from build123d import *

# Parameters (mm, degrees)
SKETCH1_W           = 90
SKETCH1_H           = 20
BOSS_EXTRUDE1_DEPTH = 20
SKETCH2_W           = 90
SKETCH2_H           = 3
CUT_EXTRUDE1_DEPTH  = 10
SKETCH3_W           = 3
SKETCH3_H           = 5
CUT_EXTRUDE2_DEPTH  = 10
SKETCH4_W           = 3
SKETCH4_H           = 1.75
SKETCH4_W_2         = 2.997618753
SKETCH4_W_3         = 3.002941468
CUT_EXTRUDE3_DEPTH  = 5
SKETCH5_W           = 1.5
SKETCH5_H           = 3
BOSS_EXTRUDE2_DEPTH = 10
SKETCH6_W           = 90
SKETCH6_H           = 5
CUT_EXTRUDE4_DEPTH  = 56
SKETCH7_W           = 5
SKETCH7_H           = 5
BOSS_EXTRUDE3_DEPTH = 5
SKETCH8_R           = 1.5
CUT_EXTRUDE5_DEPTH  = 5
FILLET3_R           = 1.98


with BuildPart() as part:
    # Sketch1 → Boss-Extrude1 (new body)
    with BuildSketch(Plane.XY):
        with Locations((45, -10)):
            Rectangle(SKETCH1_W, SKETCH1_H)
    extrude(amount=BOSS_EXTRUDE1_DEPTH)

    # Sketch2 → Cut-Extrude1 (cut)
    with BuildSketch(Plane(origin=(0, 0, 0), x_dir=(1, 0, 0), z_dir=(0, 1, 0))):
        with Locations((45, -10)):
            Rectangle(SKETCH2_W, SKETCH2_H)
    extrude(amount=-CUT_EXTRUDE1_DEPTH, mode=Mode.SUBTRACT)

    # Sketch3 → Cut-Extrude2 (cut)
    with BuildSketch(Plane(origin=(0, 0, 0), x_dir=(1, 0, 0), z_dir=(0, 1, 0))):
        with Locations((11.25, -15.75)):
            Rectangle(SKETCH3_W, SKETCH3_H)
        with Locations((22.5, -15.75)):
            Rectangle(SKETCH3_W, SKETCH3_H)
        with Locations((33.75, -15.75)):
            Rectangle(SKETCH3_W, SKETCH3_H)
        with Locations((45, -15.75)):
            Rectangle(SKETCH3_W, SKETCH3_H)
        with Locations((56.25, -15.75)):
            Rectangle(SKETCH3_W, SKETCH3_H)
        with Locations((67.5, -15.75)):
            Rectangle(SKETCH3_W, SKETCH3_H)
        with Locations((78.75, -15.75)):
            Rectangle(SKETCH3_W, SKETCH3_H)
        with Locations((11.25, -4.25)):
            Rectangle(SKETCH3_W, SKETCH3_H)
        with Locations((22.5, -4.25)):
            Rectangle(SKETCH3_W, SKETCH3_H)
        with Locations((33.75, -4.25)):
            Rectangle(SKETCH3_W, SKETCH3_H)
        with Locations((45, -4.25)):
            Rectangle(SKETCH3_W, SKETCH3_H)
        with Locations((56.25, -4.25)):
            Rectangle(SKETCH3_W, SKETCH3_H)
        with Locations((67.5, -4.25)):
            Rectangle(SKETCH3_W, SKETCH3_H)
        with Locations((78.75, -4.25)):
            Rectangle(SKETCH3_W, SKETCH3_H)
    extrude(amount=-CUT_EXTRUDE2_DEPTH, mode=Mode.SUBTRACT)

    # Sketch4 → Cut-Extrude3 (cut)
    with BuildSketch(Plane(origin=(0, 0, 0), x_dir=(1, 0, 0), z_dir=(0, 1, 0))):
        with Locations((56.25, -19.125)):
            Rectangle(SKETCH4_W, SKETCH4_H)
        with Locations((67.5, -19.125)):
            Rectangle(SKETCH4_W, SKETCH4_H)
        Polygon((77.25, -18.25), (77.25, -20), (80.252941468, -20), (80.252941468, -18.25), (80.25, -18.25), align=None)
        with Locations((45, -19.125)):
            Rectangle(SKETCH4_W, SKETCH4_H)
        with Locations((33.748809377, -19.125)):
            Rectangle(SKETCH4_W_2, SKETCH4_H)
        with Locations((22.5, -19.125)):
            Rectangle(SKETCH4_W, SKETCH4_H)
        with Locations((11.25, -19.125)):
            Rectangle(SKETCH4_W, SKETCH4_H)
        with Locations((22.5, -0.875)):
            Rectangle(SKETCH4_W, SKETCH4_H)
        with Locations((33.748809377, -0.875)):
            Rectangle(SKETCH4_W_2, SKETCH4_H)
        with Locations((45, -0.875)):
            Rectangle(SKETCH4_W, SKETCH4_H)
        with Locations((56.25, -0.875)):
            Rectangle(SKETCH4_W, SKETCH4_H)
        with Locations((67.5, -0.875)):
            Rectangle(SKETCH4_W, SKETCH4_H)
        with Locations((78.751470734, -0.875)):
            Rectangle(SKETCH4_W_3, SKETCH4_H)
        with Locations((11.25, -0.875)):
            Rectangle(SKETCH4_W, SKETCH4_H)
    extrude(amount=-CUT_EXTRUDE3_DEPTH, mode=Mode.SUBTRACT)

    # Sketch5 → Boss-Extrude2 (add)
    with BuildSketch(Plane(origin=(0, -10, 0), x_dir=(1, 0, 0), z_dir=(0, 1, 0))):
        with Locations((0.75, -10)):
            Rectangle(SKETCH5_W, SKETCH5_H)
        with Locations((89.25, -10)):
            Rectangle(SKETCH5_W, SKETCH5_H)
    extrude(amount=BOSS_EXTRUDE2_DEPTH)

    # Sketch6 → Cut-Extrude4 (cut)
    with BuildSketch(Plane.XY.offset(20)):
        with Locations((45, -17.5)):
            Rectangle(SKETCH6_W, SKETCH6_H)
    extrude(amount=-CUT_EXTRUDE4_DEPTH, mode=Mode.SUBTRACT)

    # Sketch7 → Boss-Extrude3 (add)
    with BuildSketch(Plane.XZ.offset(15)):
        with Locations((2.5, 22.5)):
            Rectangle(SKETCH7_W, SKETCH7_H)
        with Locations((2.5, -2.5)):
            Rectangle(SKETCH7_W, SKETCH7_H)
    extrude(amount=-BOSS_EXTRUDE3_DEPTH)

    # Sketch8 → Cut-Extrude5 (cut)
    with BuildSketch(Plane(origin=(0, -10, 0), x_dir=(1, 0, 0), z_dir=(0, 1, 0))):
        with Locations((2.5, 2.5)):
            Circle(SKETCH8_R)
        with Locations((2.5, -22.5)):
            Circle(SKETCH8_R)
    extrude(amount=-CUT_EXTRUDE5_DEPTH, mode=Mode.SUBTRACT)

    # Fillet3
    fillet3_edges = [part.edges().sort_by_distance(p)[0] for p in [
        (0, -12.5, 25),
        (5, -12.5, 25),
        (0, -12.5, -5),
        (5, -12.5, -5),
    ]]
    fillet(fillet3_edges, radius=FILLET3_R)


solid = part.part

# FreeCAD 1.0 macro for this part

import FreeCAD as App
import Part
import Sketcher


def edges_at(feature, points):
    """Names of the edges that pass closest to the given points."""
    edges = feature.Shape.Edges
    near = lambda p: min(range(len(edges)), key=lambda i: edges[i].distToShape(Part.Vertex(*p))[0])
    return sorted({f"Edge{near(p) + 1}" for p in points})

doc = App.newDocument("Part")
body = doc.addObject("PartDesign::Body", "Body")

sketch1 = body.newObject("Sketcher::SketchObject", "Sketch")
sketch1.AttachmentSupport = (doc.getObject("XY_Plane"), [""])
sketch1.MapMode = "FlatFace"
sketch1.addGeometry(Part.LineSegment(App.Vector(0, 0, 0), App.Vector(0, -20, 0)), False)
sketch1.addGeometry(Part.LineSegment(App.Vector(0, -20, 0), App.Vector(90, -20, 0)), False)
sketch1.addGeometry(Part.LineSegment(App.Vector(90, -20, 0), App.Vector(90, 0, 0)), False)
sketch1.addGeometry(Part.LineSegment(App.Vector(90, 0, 0), App.Vector(0, 0, 0)), False)
sketch1.addConstraint(Sketcher.Constraint("Coincident", 0, 2, 1, 1))
sketch1.addConstraint(Sketcher.Constraint("Coincident", 1, 2, 2, 1))
sketch1.addConstraint(Sketcher.Constraint("Coincident", 2, 2, 3, 1))
sketch1.addConstraint(Sketcher.Constraint("Coincident", 3, 2, 0, 1))
sketch1.addConstraint(Sketcher.Constraint("Vertical", 0))
sketch1.addConstraint(Sketcher.Constraint("Horizontal", 1))
sketch1.addConstraint(Sketcher.Constraint("Vertical", 2))
sketch1.addConstraint(Sketcher.Constraint("Horizontal", 3))
sketch1.addConstraint(Sketcher.Constraint("Coincident", 3, 2, -1, 1))
sketch1.addConstraint(Sketcher.Constraint("DistanceX", 1, 1, 1, 2, 90.0))
sketch1.addConstraint(Sketcher.Constraint("DistanceY", 0, 2, 0, 1, 20.0))
pad1 = body.newObject("PartDesign::Pad", "Pad")
pad1.Profile = sketch1
pad1.Length = 20

sketch2 = body.newObject("Sketcher::SketchObject", "Sketch001")
sketch2.AttachmentSupport = (doc.getObject("XZ_Plane"), [""])
sketch2.MapMode = "FlatFace"
sketch2.addGeometry(Part.LineSegment(App.Vector(0, 8.5, 0), App.Vector(0, 11.5, 0)), False)
sketch2.addGeometry(Part.LineSegment(App.Vector(0, 11.5, 0), App.Vector(90, 11.5, 0)), False)
sketch2.addGeometry(Part.LineSegment(App.Vector(90, 11.5, 0), App.Vector(90, 8.5, 0)), False)
sketch2.addGeometry(Part.LineSegment(App.Vector(90, 8.5, 0), App.Vector(0, 8.5, 0)), False)
sketch2.addConstraint(Sketcher.Constraint("Coincident", 0, 2, 1, 1))
sketch2.addConstraint(Sketcher.Constraint("Coincident", 1, 2, 2, 1))
sketch2.addConstraint(Sketcher.Constraint("Coincident", 2, 2, 3, 1))
sketch2.addConstraint(Sketcher.Constraint("Coincident", 3, 2, 0, 1))
sketch2.addConstraint(Sketcher.Constraint("Vertical", 0))
sketch2.addConstraint(Sketcher.Constraint("Horizontal", 1))
sketch2.addConstraint(Sketcher.Constraint("Vertical", 2))
sketch2.addConstraint(Sketcher.Constraint("Horizontal", 3))
sketch2.addConstraint(Sketcher.Constraint("PointOnObject", 0, 2, -2))
sketch2.addConstraint(Sketcher.Constraint("DistanceX", 1, 1, 1, 2, 90.0))
sketch2.addConstraint(Sketcher.Constraint("DistanceY", 0, 1, 0, 2, 3.0))
sketch2.addConstraint(Sketcher.Constraint("DistanceY", -1, 1, 0, 2, 11.5))
pocket1 = body.newObject("PartDesign::Pocket", "Pocket")
pocket1.Profile = sketch2
pocket1.Length = 10
pocket1.Reversed = True

sketch3 = body.newObject("Sketcher::SketchObject", "Sketch002")
sketch3.AttachmentSupport = (doc.getObject("XZ_Plane"), [""])
sketch3.MapMode = "FlatFace"
sketch3.addGeometry(Part.LineSegment(App.Vector(9.75, 13.25, 0), App.Vector(9.75, 18.25, 0)), False)
sketch3.addGeometry(Part.LineSegment(App.Vector(9.75, 18.25, 0), App.Vector(12.75, 18.25, 0)), False)
sketch3.addGeometry(Part.LineSegment(App.Vector(12.75, 18.25, 0), App.Vector(12.75, 13.25, 0)), False)
sketch3.addGeometry(Part.LineSegment(App.Vector(12.75, 13.25, 0), App.Vector(9.75, 13.25, 0)), False)
sketch3.addGeometry(Part.LineSegment(App.Vector(21, 13.25, 0), App.Vector(21, 18.25, 0)), False)
sketch3.addGeometry(Part.LineSegment(App.Vector(21, 18.25, 0), App.Vector(24, 18.25, 0)), False)
sketch3.addGeometry(Part.LineSegment(App.Vector(24, 18.25, 0), App.Vector(24, 13.25, 0)), False)
sketch3.addGeometry(Part.LineSegment(App.Vector(24, 13.25, 0), App.Vector(21, 13.25, 0)), False)
sketch3.addGeometry(Part.LineSegment(App.Vector(32.25, 13.25, 0), App.Vector(32.25, 18.25, 0)), False)
sketch3.addGeometry(Part.LineSegment(App.Vector(32.25, 18.25, 0), App.Vector(35.25, 18.25, 0)), False)
sketch3.addGeometry(Part.LineSegment(App.Vector(35.25, 18.25, 0), App.Vector(35.25, 13.25, 0)), False)
sketch3.addGeometry(Part.LineSegment(App.Vector(35.25, 13.25, 0), App.Vector(32.25, 13.25, 0)), False)
sketch3.addGeometry(Part.LineSegment(App.Vector(43.5, 13.25, 0), App.Vector(43.5, 18.25, 0)), False)
sketch3.addGeometry(Part.LineSegment(App.Vector(43.5, 18.25, 0), App.Vector(46.5, 18.25, 0)), False)
sketch3.addGeometry(Part.LineSegment(App.Vector(46.5, 18.25, 0), App.Vector(46.5, 13.25, 0)), False)
sketch3.addGeometry(Part.LineSegment(App.Vector(46.5, 13.25, 0), App.Vector(43.5, 13.25, 0)), False)
sketch3.addGeometry(Part.LineSegment(App.Vector(54.75, 13.25, 0), App.Vector(54.75, 18.25, 0)), False)
sketch3.addGeometry(Part.LineSegment(App.Vector(54.75, 18.25, 0), App.Vector(57.75, 18.25, 0)), False)
sketch3.addGeometry(Part.LineSegment(App.Vector(57.75, 18.25, 0), App.Vector(57.75, 13.25, 0)), False)
sketch3.addGeometry(Part.LineSegment(App.Vector(57.75, 13.25, 0), App.Vector(54.75, 13.25, 0)), False)
sketch3.addGeometry(Part.LineSegment(App.Vector(66, 13.25, 0), App.Vector(66, 18.25, 0)), False)
sketch3.addGeometry(Part.LineSegment(App.Vector(66, 18.25, 0), App.Vector(69, 18.25, 0)), False)
sketch3.addGeometry(Part.LineSegment(App.Vector(69, 18.25, 0), App.Vector(69, 13.25, 0)), False)
sketch3.addGeometry(Part.LineSegment(App.Vector(69, 13.25, 0), App.Vector(66, 13.25, 0)), False)
sketch3.addGeometry(Part.LineSegment(App.Vector(77.25, 13.25, 0), App.Vector(77.25, 18.25, 0)), False)
sketch3.addGeometry(Part.LineSegment(App.Vector(77.25, 18.25, 0), App.Vector(80.25, 18.25, 0)), False)
sketch3.addGeometry(Part.LineSegment(App.Vector(80.25, 18.25, 0), App.Vector(80.25, 13.25, 0)), False)
sketch3.addGeometry(Part.LineSegment(App.Vector(80.25, 13.25, 0), App.Vector(77.25, 13.25, 0)), False)
sketch3.addGeometry(Part.LineSegment(App.Vector(9.75, 1.75, 0), App.Vector(9.75, 6.75, 0)), False)
sketch3.addGeometry(Part.LineSegment(App.Vector(9.75, 6.75, 0), App.Vector(12.75, 6.75, 0)), False)
sketch3.addGeometry(Part.LineSegment(App.Vector(12.75, 6.75, 0), App.Vector(12.75, 1.75, 0)), False)
sketch3.addGeometry(Part.LineSegment(App.Vector(12.75, 1.75, 0), App.Vector(9.75, 1.75, 0)), False)
sketch3.addGeometry(Part.LineSegment(App.Vector(21, 1.75, 0), App.Vector(21, 6.75, 0)), False)
sketch3.addGeometry(Part.LineSegment(App.Vector(21, 6.75, 0), App.Vector(24, 6.75, 0)), False)
sketch3.addGeometry(Part.LineSegment(App.Vector(24, 6.75, 0), App.Vector(24, 1.75, 0)), False)
sketch3.addGeometry(Part.LineSegment(App.Vector(24, 1.75, 0), App.Vector(21, 1.75, 0)), False)
sketch3.addGeometry(Part.LineSegment(App.Vector(32.25, 1.75, 0), App.Vector(32.25, 6.75, 0)), False)
sketch3.addGeometry(Part.LineSegment(App.Vector(32.25, 6.75, 0), App.Vector(35.25, 6.75, 0)), False)
sketch3.addGeometry(Part.LineSegment(App.Vector(35.25, 6.75, 0), App.Vector(35.25, 1.75, 0)), False)
sketch3.addGeometry(Part.LineSegment(App.Vector(35.25, 1.75, 0), App.Vector(32.25, 1.75, 0)), False)
sketch3.addGeometry(Part.LineSegment(App.Vector(43.5, 1.75, 0), App.Vector(43.5, 6.75, 0)), False)
sketch3.addGeometry(Part.LineSegment(App.Vector(43.5, 6.75, 0), App.Vector(46.5, 6.75, 0)), False)
sketch3.addGeometry(Part.LineSegment(App.Vector(46.5, 6.75, 0), App.Vector(46.5, 1.75, 0)), False)
sketch3.addGeometry(Part.LineSegment(App.Vector(46.5, 1.75, 0), App.Vector(43.5, 1.75, 0)), False)
sketch3.addGeometry(Part.LineSegment(App.Vector(54.75, 1.75, 0), App.Vector(54.75, 6.75, 0)), False)
sketch3.addGeometry(Part.LineSegment(App.Vector(54.75, 6.75, 0), App.Vector(57.75, 6.75, 0)), False)
sketch3.addGeometry(Part.LineSegment(App.Vector(57.75, 6.75, 0), App.Vector(57.75, 1.75, 0)), False)
sketch3.addGeometry(Part.LineSegment(App.Vector(57.75, 1.75, 0), App.Vector(54.75, 1.75, 0)), False)
sketch3.addGeometry(Part.LineSegment(App.Vector(66, 1.75, 0), App.Vector(66, 6.75, 0)), False)
sketch3.addGeometry(Part.LineSegment(App.Vector(66, 6.75, 0), App.Vector(69, 6.75, 0)), False)
sketch3.addGeometry(Part.LineSegment(App.Vector(69, 6.75, 0), App.Vector(69, 1.75, 0)), False)
sketch3.addGeometry(Part.LineSegment(App.Vector(69, 1.75, 0), App.Vector(66, 1.75, 0)), False)
sketch3.addGeometry(Part.LineSegment(App.Vector(77.25, 1.75, 0), App.Vector(77.25, 6.75, 0)), False)
sketch3.addGeometry(Part.LineSegment(App.Vector(77.25, 6.75, 0), App.Vector(80.25, 6.75, 0)), False)
sketch3.addGeometry(Part.LineSegment(App.Vector(80.25, 6.75, 0), App.Vector(80.25, 1.75, 0)), False)
sketch3.addGeometry(Part.LineSegment(App.Vector(80.25, 1.75, 0), App.Vector(77.25, 1.75, 0)), False)
sketch3.addConstraint(Sketcher.Constraint("Coincident", 0, 2, 1, 1))
sketch3.addConstraint(Sketcher.Constraint("Coincident", 1, 2, 2, 1))
sketch3.addConstraint(Sketcher.Constraint("Coincident", 2, 2, 3, 1))
sketch3.addConstraint(Sketcher.Constraint("Coincident", 3, 2, 0, 1))
sketch3.addConstraint(Sketcher.Constraint("Coincident", 4, 2, 5, 1))
sketch3.addConstraint(Sketcher.Constraint("Coincident", 5, 2, 6, 1))
sketch3.addConstraint(Sketcher.Constraint("Coincident", 6, 2, 7, 1))
sketch3.addConstraint(Sketcher.Constraint("Coincident", 7, 2, 4, 1))
sketch3.addConstraint(Sketcher.Constraint("Coincident", 8, 2, 9, 1))
sketch3.addConstraint(Sketcher.Constraint("Coincident", 9, 2, 10, 1))
sketch3.addConstraint(Sketcher.Constraint("Coincident", 10, 2, 11, 1))
sketch3.addConstraint(Sketcher.Constraint("Coincident", 11, 2, 8, 1))
sketch3.addConstraint(Sketcher.Constraint("Coincident", 12, 2, 13, 1))
sketch3.addConstraint(Sketcher.Constraint("Coincident", 13, 2, 14, 1))
sketch3.addConstraint(Sketcher.Constraint("Coincident", 14, 2, 15, 1))
sketch3.addConstraint(Sketcher.Constraint("Coincident", 15, 2, 12, 1))
sketch3.addConstraint(Sketcher.Constraint("Coincident", 16, 2, 17, 1))
sketch3.addConstraint(Sketcher.Constraint("Coincident", 17, 2, 18, 1))
sketch3.addConstraint(Sketcher.Constraint("Coincident", 18, 2, 19, 1))
sketch3.addConstraint(Sketcher.Constraint("Coincident", 19, 2, 16, 1))
sketch3.addConstraint(Sketcher.Constraint("Coincident", 20, 2, 21, 1))
sketch3.addConstraint(Sketcher.Constraint("Coincident", 21, 2, 22, 1))
sketch3.addConstraint(Sketcher.Constraint("Coincident", 22, 2, 23, 1))
sketch3.addConstraint(Sketcher.Constraint("Coincident", 23, 2, 20, 1))
sketch3.addConstraint(Sketcher.Constraint("Coincident", 24, 2, 25, 1))
sketch3.addConstraint(Sketcher.Constraint("Coincident", 25, 2, 26, 1))
sketch3.addConstraint(Sketcher.Constraint("Coincident", 26, 2, 27, 1))
sketch3.addConstraint(Sketcher.Constraint("Coincident", 27, 2, 24, 1))
sketch3.addConstraint(Sketcher.Constraint("Coincident", 28, 2, 29, 1))
sketch3.addConstraint(Sketcher.Constraint("Coincident", 29, 2, 30, 1))
sketch3.addConstraint(Sketcher.Constraint("Coincident", 30, 2, 31, 1))
sketch3.addConstraint(Sketcher.Constraint("Coincident", 31, 2, 28, 1))
sketch3.addConstraint(Sketcher.Constraint("Coincident", 32, 2, 33, 1))
sketch3.addConstraint(Sketcher.Constraint("Coincident", 33, 2, 34, 1))
sketch3.addConstraint(Sketcher.Constraint("Coincident", 34, 2, 35, 1))
sketch3.addConstraint(Sketcher.Constraint("Coincident", 35, 2, 32, 1))
sketch3.addConstraint(Sketcher.Constraint("Coincident", 36, 2, 37, 1))
sketch3.addConstraint(Sketcher.Constraint("Coincident", 37, 2, 38, 1))
sketch3.addConstraint(Sketcher.Constraint("Coincident", 38, 2, 39, 1))
sketch3.addConstraint(Sketcher.Constraint("Coincident", 39, 2, 36, 1))
sketch3.addConstraint(Sketcher.Constraint("Coincident", 40, 2, 41, 1))
sketch3.addConstraint(Sketcher.Constraint("Coincident", 41, 2, 42, 1))
sketch3.addConstraint(Sketcher.Constraint("Coincident", 42, 2, 43, 1))
sketch3.addConstraint(Sketcher.Constraint("Coincident", 43, 2, 40, 1))
sketch3.addConstraint(Sketcher.Constraint("Coincident", 44, 2, 45, 1))
sketch3.addConstraint(Sketcher.Constraint("Coincident", 45, 2, 46, 1))
sketch3.addConstraint(Sketcher.Constraint("Coincident", 46, 2, 47, 1))
sketch3.addConstraint(Sketcher.Constraint("Coincident", 47, 2, 44, 1))
sketch3.addConstraint(Sketcher.Constraint("Coincident", 48, 2, 49, 1))
sketch3.addConstraint(Sketcher.Constraint("Coincident", 49, 2, 50, 1))
sketch3.addConstraint(Sketcher.Constraint("Coincident", 50, 2, 51, 1))
sketch3.addConstraint(Sketcher.Constraint("Coincident", 51, 2, 48, 1))
sketch3.addConstraint(Sketcher.Constraint("Coincident", 52, 2, 53, 1))
sketch3.addConstraint(Sketcher.Constraint("Coincident", 53, 2, 54, 1))
sketch3.addConstraint(Sketcher.Constraint("Coincident", 54, 2, 55, 1))
sketch3.addConstraint(Sketcher.Constraint("Coincident", 55, 2, 52, 1))
sketch3.addConstraint(Sketcher.Constraint("Vertical", 0))
sketch3.addConstraint(Sketcher.Constraint("Horizontal", 1))
sketch3.addConstraint(Sketcher.Constraint("Vertical", 2))
sketch3.addConstraint(Sketcher.Constraint("Horizontal", 3))
sketch3.addConstraint(Sketcher.Constraint("Vertical", 4))
sketch3.addConstraint(Sketcher.Constraint("Horizontal", 5))
sketch3.addConstraint(Sketcher.Constraint("Vertical", 6))
sketch3.addConstraint(Sketcher.Constraint("Horizontal", 7))
sketch3.addConstraint(Sketcher.Constraint("Vertical", 8))
sketch3.addConstraint(Sketcher.Constraint("Horizontal", 9))
sketch3.addConstraint(Sketcher.Constraint("Vertical", 10))
sketch3.addConstraint(Sketcher.Constraint("Horizontal", 11))
sketch3.addConstraint(Sketcher.Constraint("Vertical", 12))
sketch3.addConstraint(Sketcher.Constraint("Horizontal", 13))
sketch3.addConstraint(Sketcher.Constraint("Vertical", 14))
sketch3.addConstraint(Sketcher.Constraint("Horizontal", 15))
sketch3.addConstraint(Sketcher.Constraint("Vertical", 16))
sketch3.addConstraint(Sketcher.Constraint("Horizontal", 17))
sketch3.addConstraint(Sketcher.Constraint("Vertical", 18))
sketch3.addConstraint(Sketcher.Constraint("Horizontal", 19))
sketch3.addConstraint(Sketcher.Constraint("Vertical", 20))
sketch3.addConstraint(Sketcher.Constraint("Horizontal", 21))
sketch3.addConstraint(Sketcher.Constraint("Vertical", 22))
sketch3.addConstraint(Sketcher.Constraint("Horizontal", 23))
sketch3.addConstraint(Sketcher.Constraint("Vertical", 24))
sketch3.addConstraint(Sketcher.Constraint("Horizontal", 25))
sketch3.addConstraint(Sketcher.Constraint("Vertical", 26))
sketch3.addConstraint(Sketcher.Constraint("Horizontal", 27))
sketch3.addConstraint(Sketcher.Constraint("Vertical", 28))
sketch3.addConstraint(Sketcher.Constraint("Horizontal", 29))
sketch3.addConstraint(Sketcher.Constraint("Vertical", 30))
sketch3.addConstraint(Sketcher.Constraint("Horizontal", 31))
sketch3.addConstraint(Sketcher.Constraint("Vertical", 32))
sketch3.addConstraint(Sketcher.Constraint("Horizontal", 33))
sketch3.addConstraint(Sketcher.Constraint("Vertical", 34))
sketch3.addConstraint(Sketcher.Constraint("Horizontal", 35))
sketch3.addConstraint(Sketcher.Constraint("Vertical", 36))
sketch3.addConstraint(Sketcher.Constraint("Horizontal", 37))
sketch3.addConstraint(Sketcher.Constraint("Vertical", 38))
sketch3.addConstraint(Sketcher.Constraint("Horizontal", 39))
sketch3.addConstraint(Sketcher.Constraint("Vertical", 40))
sketch3.addConstraint(Sketcher.Constraint("Horizontal", 41))
sketch3.addConstraint(Sketcher.Constraint("Vertical", 42))
sketch3.addConstraint(Sketcher.Constraint("Horizontal", 43))
sketch3.addConstraint(Sketcher.Constraint("Vertical", 44))
sketch3.addConstraint(Sketcher.Constraint("Horizontal", 45))
sketch3.addConstraint(Sketcher.Constraint("Vertical", 46))
sketch3.addConstraint(Sketcher.Constraint("Horizontal", 47))
sketch3.addConstraint(Sketcher.Constraint("Vertical", 48))
sketch3.addConstraint(Sketcher.Constraint("Horizontal", 49))
sketch3.addConstraint(Sketcher.Constraint("Vertical", 50))
sketch3.addConstraint(Sketcher.Constraint("Horizontal", 51))
sketch3.addConstraint(Sketcher.Constraint("Vertical", 52))
sketch3.addConstraint(Sketcher.Constraint("Horizontal", 53))
sketch3.addConstraint(Sketcher.Constraint("Vertical", 54))
sketch3.addConstraint(Sketcher.Constraint("Horizontal", 55))
sketch3.addConstraint(Sketcher.Constraint("Horizontal", 1, 2, 4, 2))
sketch3.addConstraint(Sketcher.Constraint("Horizontal", 3, 2, 6, 2))
sketch3.addConstraint(Sketcher.Constraint("Horizontal", 5, 2, 8, 2))
sketch3.addConstraint(Sketcher.Constraint("Horizontal", 7, 2, 10, 2))
sketch3.addConstraint(Sketcher.Constraint("Horizontal", 9, 2, 12, 2))
sketch3.addConstraint(Sketcher.Constraint("Horizontal", 11, 2, 14, 2))
sketch3.addConstraint(Sketcher.Constraint("Horizontal", 13, 2, 16, 2))
sketch3.addConstraint(Sketcher.Constraint("Horizontal", 15, 2, 18, 2))
sketch3.addConstraint(Sketcher.Constraint("Horizontal", 17, 2, 20, 2))
sketch3.addConstraint(Sketcher.Constraint("Horizontal", 19, 2, 22, 2))
sketch3.addConstraint(Sketcher.Constraint("Horizontal", 21, 2, 24, 2))
sketch3.addConstraint(Sketcher.Constraint("Horizontal", 23, 2, 26, 2))
sketch3.addConstraint(Sketcher.Constraint("Horizontal", 29, 2, 32, 2))
sketch3.addConstraint(Sketcher.Constraint("Horizontal", 31, 2, 34, 2))
sketch3.addConstraint(Sketcher.Constraint("Horizontal", 33, 2, 36, 2))
sketch3.addConstraint(Sketcher.Constraint("Horizontal", 35, 2, 38, 2))
sketch3.addConstraint(Sketcher.Constraint("Horizontal", 37, 2, 40, 2))
sketch3.addConstraint(Sketcher.Constraint("Horizontal", 39, 2, 42, 2))
sketch3.addConstraint(Sketcher.Constraint("Horizontal", 41, 2, 44, 2))
sketch3.addConstraint(Sketcher.Constraint("Horizontal", 43, 2, 46, 2))
sketch3.addConstraint(Sketcher.Constraint("Horizontal", 45, 2, 48, 2))
sketch3.addConstraint(Sketcher.Constraint("Horizontal", 47, 2, 50, 2))
sketch3.addConstraint(Sketcher.Constraint("Horizontal", 49, 2, 52, 2))
sketch3.addConstraint(Sketcher.Constraint("Horizontal", 51, 2, 54, 2))
sketch3.addConstraint(Sketcher.Constraint("Vertical", 3, 2, 28, 2))
sketch3.addConstraint(Sketcher.Constraint("Vertical", 2, 2, 29, 2))
sketch3.addConstraint(Sketcher.Constraint("Vertical", 7, 2, 32, 2))
sketch3.addConstraint(Sketcher.Constraint("Vertical", 6, 2, 33, 2))
sketch3.addConstraint(Sketcher.Constraint("Vertical", 11, 2, 36, 2))
sketch3.addConstraint(Sketcher.Constraint("Vertical", 10, 2, 37, 2))
sketch3.addConstraint(Sketcher.Constraint("Vertical", 15, 2, 40, 2))
sketch3.addConstraint(Sketcher.Constraint("Vertical", 14, 2, 41, 2))
sketch3.addConstraint(Sketcher.Constraint("Vertical", 19, 2, 44, 2))
sketch3.addConstraint(Sketcher.Constraint("Vertical", 18, 2, 45, 2))
sketch3.addConstraint(Sketcher.Constraint("Vertical", 23, 2, 48, 2))
sketch3.addConstraint(Sketcher.Constraint("Vertical", 22, 2, 49, 2))
sketch3.addConstraint(Sketcher.Constraint("Vertical", 27, 2, 52, 2))
sketch3.addConstraint(Sketcher.Constraint("Vertical", 26, 2, 53, 2))
sketch3.addConstraint(Sketcher.Constraint("Equal", 3, 5))
sketch3.addConstraint(Sketcher.Constraint("Equal", 7, 9))
sketch3.addConstraint(Sketcher.Constraint("Equal", 11, 13))
sketch3.addConstraint(Sketcher.Constraint("Equal", 15, 17))
sketch3.addConstraint(Sketcher.Constraint("Equal", 19, 21))
sketch3.addConstraint(Sketcher.Constraint("Equal", 23, 25))
sketch3.addConstraint(Sketcher.Constraint("Equal", 26, 28))
sketch3.addConstraint(Sketcher.Constraint("DistanceX", 1, 1, 1, 2, 3.0))
sketch3.addConstraint(Sketcher.Constraint("DistanceY", 0, 1, 0, 2, 5.0))
sketch3.addConstraint(Sketcher.Constraint("DistanceX", -1, 1, 4, 2, 21.0))
sketch3.addConstraint(Sketcher.Constraint("DistanceX", -1, 1, 20, 2, 66.0))
sketch3.addConstraint(Sketcher.Constraint("DistanceX", -1, 1, 12, 2, 43.5))
sketch3.addConstraint(Sketcher.Constraint("DistanceX", 1, 2, 8, 2, 19.5))
sketch3.addConstraint(Sketcher.Constraint("DistanceX", 9, 2, 16, 2, 19.5))
sketch3.addConstraint(Sketcher.Constraint("DistanceX", 17, 2, 24, 2, 19.5))
sketch3.addConstraint(Sketcher.Constraint("DistanceY", 28, 2, 3, 2, 6.5))
sketch3.addConstraint(Sketcher.Constraint("DistanceX", -1, 1, 0, 2, 9.75))
sketch3.addConstraint(Sketcher.Constraint("DistanceY", -1, 1, 0, 2, 18.25))
pocket2 = body.newObject("PartDesign::Pocket", "Pocket001")
pocket2.Profile = sketch3
pocket2.Length = 10
pocket2.Reversed = True

sketch4 = body.newObject("Sketcher::SketchObject", "Sketch003")
sketch4.AttachmentSupport = (doc.getObject("XZ_Plane"), [""])
sketch4.MapMode = "FlatFace"
sketch4.addGeometry(Part.LineSegment(App.Vector(54.75, 18.25, 0), App.Vector(54.75, 20, 0)), False)
sketch4.addGeometry(Part.LineSegment(App.Vector(54.75, 20, 0), App.Vector(57.75, 20, 0)), False)
sketch4.addGeometry(Part.LineSegment(App.Vector(57.75, 20, 0), App.Vector(57.75, 18.25, 0)), False)
sketch4.addGeometry(Part.LineSegment(App.Vector(57.75, 18.25, 0), App.Vector(54.75, 18.25, 0)), False)
sketch4.addGeometry(Part.LineSegment(App.Vector(66, 18.25, 0), App.Vector(66, 20, 0)), False)
sketch4.addGeometry(Part.LineSegment(App.Vector(66, 20, 0), App.Vector(69, 20, 0)), False)
sketch4.addGeometry(Part.LineSegment(App.Vector(69, 20, 0), App.Vector(69, 18.25, 0)), False)
sketch4.addGeometry(Part.LineSegment(App.Vector(69, 18.25, 0), App.Vector(66, 18.25, 0)), False)
sketch4.addGeometry(Part.LineSegment(App.Vector(77.25, 18.25, 0), App.Vector(77.25, 20, 0)), False)
sketch4.addGeometry(Part.LineSegment(App.Vector(77.25, 20, 0), App.Vector(80.252941, 20, 0)), False)
sketch4.addGeometry(Part.LineSegment(App.Vector(80.252941, 20, 0), App.Vector(80.252941, 18.25, 0)), False)
sketch4.addGeometry(Part.LineSegment(App.Vector(80.252941, 18.25, 0), App.Vector(77.25, 18.25, 0)), False)
sketch4.addGeometry(Part.LineSegment(App.Vector(43.5, 18.25, 0), App.Vector(43.5, 20, 0)), False)
sketch4.addGeometry(Part.LineSegment(App.Vector(43.5, 20, 0), App.Vector(46.5, 20, 0)), False)
sketch4.addGeometry(Part.LineSegment(App.Vector(46.5, 20, 0), App.Vector(46.5, 18.25, 0)), False)
sketch4.addGeometry(Part.LineSegment(App.Vector(46.5, 18.25, 0), App.Vector(43.5, 18.25, 0)), False)
sketch4.addGeometry(Part.LineSegment(App.Vector(32.25, 18.25, 0), App.Vector(32.25, 20, 0)), False)
sketch4.addGeometry(Part.LineSegment(App.Vector(32.25, 20, 0), App.Vector(35.247619, 20, 0)), False)
sketch4.addGeometry(Part.LineSegment(App.Vector(35.247619, 20, 0), App.Vector(35.247619, 18.25, 0)), False)
sketch4.addGeometry(Part.LineSegment(App.Vector(35.247619, 18.25, 0), App.Vector(32.25, 18.25, 0)), False)
sketch4.addGeometry(Part.LineSegment(App.Vector(21, 18.25, 0), App.Vector(21, 20, 0)), False)
sketch4.addGeometry(Part.LineSegment(App.Vector(21, 20, 0), App.Vector(24, 20, 0)), False)
sketch4.addGeometry(Part.LineSegment(App.Vector(24, 20, 0), App.Vector(24, 18.25, 0)), False)
sketch4.addGeometry(Part.LineSegment(App.Vector(24, 18.25, 0), App.Vector(21, 18.25, 0)), False)
sketch4.addGeometry(Part.LineSegment(App.Vector(9.75, 18.25, 0), App.Vector(9.75, 20, 0)), False)
sketch4.addGeometry(Part.LineSegment(App.Vector(9.75, 20, 0), App.Vector(12.75, 20, 0)), False)
sketch4.addGeometry(Part.LineSegment(App.Vector(12.75, 20, 0), App.Vector(12.75, 18.25, 0)), False)
sketch4.addGeometry(Part.LineSegment(App.Vector(12.75, 18.25, 0), App.Vector(9.75, 18.25, 0)), False)
sketch4.addGeometry(Part.LineSegment(App.Vector(21, 0, 0), App.Vector(21, 1.75, 0)), False)
sketch4.addGeometry(Part.LineSegment(App.Vector(21, 1.75, 0), App.Vector(24, 1.75, 0)), False)
sketch4.addGeometry(Part.LineSegment(App.Vector(24, 1.75, 0), App.Vector(24, 0, 0)), False)
sketch4.addGeometry(Part.LineSegment(App.Vector(24, 0, 0), App.Vector(21, 0, 0)), False)
sketch4.addGeometry(Part.LineSegment(App.Vector(32.25, 0, 0), App.Vector(32.25, 1.75, 0)), False)
sketch4.addGeometry(Part.LineSegment(App.Vector(32.25, 1.75, 0), App.Vector(35.247619, 1.75, 0)), False)
sketch4.addGeometry(Part.LineSegment(App.Vector(35.247619, 1.75, 0), App.Vector(35.247619, 0, 0)), False)
sketch4.addGeometry(Part.LineSegment(App.Vector(35.247619, 0, 0), App.Vector(32.25, 0, 0)), False)
sketch4.addGeometry(Part.LineSegment(App.Vector(43.5, 0, 0), App.Vector(43.5, 1.75, 0)), False)
sketch4.addGeometry(Part.LineSegment(App.Vector(43.5, 1.75, 0), App.Vector(46.5, 1.75, 0)), False)
sketch4.addGeometry(Part.LineSegment(App.Vector(46.5, 1.75, 0), App.Vector(46.5, 0, 0)), False)
sketch4.addGeometry(Part.LineSegment(App.Vector(46.5, 0, 0), App.Vector(43.5, 0, 0)), False)
sketch4.addGeometry(Part.LineSegment(App.Vector(54.75, 0, 0), App.Vector(54.75, 1.75, 0)), False)
sketch4.addGeometry(Part.LineSegment(App.Vector(54.75, 1.75, 0), App.Vector(57.75, 1.75, 0)), False)
sketch4.addGeometry(Part.LineSegment(App.Vector(57.75, 1.75, 0), App.Vector(57.75, 0, 0)), False)
sketch4.addGeometry(Part.LineSegment(App.Vector(57.75, 0, 0), App.Vector(54.75, 0, 0)), False)
sketch4.addGeometry(Part.LineSegment(App.Vector(66, 0, 0), App.Vector(66, 1.75, 0)), False)
sketch4.addGeometry(Part.LineSegment(App.Vector(66, 1.75, 0), App.Vector(69, 1.75, 0)), False)
sketch4.addGeometry(Part.LineSegment(App.Vector(69, 1.75, 0), App.Vector(69, 0, 0)), False)
sketch4.addGeometry(Part.LineSegment(App.Vector(69, 0, 0), App.Vector(66, 0, 0)), False)
sketch4.addGeometry(Part.LineSegment(App.Vector(77.25, 0, 0), App.Vector(77.25, 1.75, 0)), False)
sketch4.addGeometry(Part.LineSegment(App.Vector(77.25, 1.75, 0), App.Vector(80.252941, 1.75, 0)), False)
sketch4.addGeometry(Part.LineSegment(App.Vector(80.252941, 1.75, 0), App.Vector(80.252941, 0, 0)), False)
sketch4.addGeometry(Part.LineSegment(App.Vector(80.252941, 0, 0), App.Vector(77.25, 0, 0)), False)
sketch4.addGeometry(Part.LineSegment(App.Vector(9.75, 0, 0), App.Vector(9.75, 1.75, 0)), False)
sketch4.addGeometry(Part.LineSegment(App.Vector(9.75, 1.75, 0), App.Vector(12.75, 1.75, 0)), False)
sketch4.addGeometry(Part.LineSegment(App.Vector(12.75, 1.75, 0), App.Vector(12.75, 0, 0)), False)
sketch4.addGeometry(Part.LineSegment(App.Vector(12.75, 0, 0), App.Vector(9.75, 0, 0)), False)
sketch4.addConstraint(Sketcher.Constraint("Coincident", 0, 2, 1, 1))
sketch4.addConstraint(Sketcher.Constraint("Coincident", 1, 2, 2, 1))
sketch4.addConstraint(Sketcher.Constraint("Coincident", 2, 2, 3, 1))
sketch4.addConstraint(Sketcher.Constraint("Coincident", 3, 2, 0, 1))
sketch4.addConstraint(Sketcher.Constraint("Coincident", 4, 2, 5, 1))
sketch4.addConstraint(Sketcher.Constraint("Coincident", 5, 2, 6, 1))
sketch4.addConstraint(Sketcher.Constraint("Coincident", 6, 2, 7, 1))
sketch4.addConstraint(Sketcher.Constraint("Coincident", 7, 2, 4, 1))
sketch4.addConstraint(Sketcher.Constraint("Coincident", 8, 2, 9, 1))
sketch4.addConstraint(Sketcher.Constraint("Coincident", 9, 2, 10, 1))
sketch4.addConstraint(Sketcher.Constraint("Coincident", 10, 2, 11, 1))
sketch4.addConstraint(Sketcher.Constraint("Coincident", 11, 2, 8, 1))
sketch4.addConstraint(Sketcher.Constraint("Coincident", 12, 2, 13, 1))
sketch4.addConstraint(Sketcher.Constraint("Coincident", 13, 2, 14, 1))
sketch4.addConstraint(Sketcher.Constraint("Coincident", 14, 2, 15, 1))
sketch4.addConstraint(Sketcher.Constraint("Coincident", 15, 2, 12, 1))
sketch4.addConstraint(Sketcher.Constraint("Coincident", 16, 2, 17, 1))
sketch4.addConstraint(Sketcher.Constraint("Coincident", 17, 2, 18, 1))
sketch4.addConstraint(Sketcher.Constraint("Coincident", 18, 2, 19, 1))
sketch4.addConstraint(Sketcher.Constraint("Coincident", 19, 2, 16, 1))
sketch4.addConstraint(Sketcher.Constraint("Coincident", 20, 2, 21, 1))
sketch4.addConstraint(Sketcher.Constraint("Coincident", 21, 2, 22, 1))
sketch4.addConstraint(Sketcher.Constraint("Coincident", 22, 2, 23, 1))
sketch4.addConstraint(Sketcher.Constraint("Coincident", 23, 2, 20, 1))
sketch4.addConstraint(Sketcher.Constraint("Coincident", 24, 2, 25, 1))
sketch4.addConstraint(Sketcher.Constraint("Coincident", 25, 2, 26, 1))
sketch4.addConstraint(Sketcher.Constraint("Coincident", 26, 2, 27, 1))
sketch4.addConstraint(Sketcher.Constraint("Coincident", 27, 2, 24, 1))
sketch4.addConstraint(Sketcher.Constraint("Coincident", 28, 2, 29, 1))
sketch4.addConstraint(Sketcher.Constraint("Coincident", 29, 2, 30, 1))
sketch4.addConstraint(Sketcher.Constraint("Coincident", 30, 2, 31, 1))
sketch4.addConstraint(Sketcher.Constraint("Coincident", 31, 2, 28, 1))
sketch4.addConstraint(Sketcher.Constraint("Coincident", 32, 2, 33, 1))
sketch4.addConstraint(Sketcher.Constraint("Coincident", 33, 2, 34, 1))
sketch4.addConstraint(Sketcher.Constraint("Coincident", 34, 2, 35, 1))
sketch4.addConstraint(Sketcher.Constraint("Coincident", 35, 2, 32, 1))
sketch4.addConstraint(Sketcher.Constraint("Coincident", 36, 2, 37, 1))
sketch4.addConstraint(Sketcher.Constraint("Coincident", 37, 2, 38, 1))
sketch4.addConstraint(Sketcher.Constraint("Coincident", 38, 2, 39, 1))
sketch4.addConstraint(Sketcher.Constraint("Coincident", 39, 2, 36, 1))
sketch4.addConstraint(Sketcher.Constraint("Coincident", 40, 2, 41, 1))
sketch4.addConstraint(Sketcher.Constraint("Coincident", 41, 2, 42, 1))
sketch4.addConstraint(Sketcher.Constraint("Coincident", 42, 2, 43, 1))
sketch4.addConstraint(Sketcher.Constraint("Coincident", 43, 2, 40, 1))
sketch4.addConstraint(Sketcher.Constraint("Coincident", 44, 2, 45, 1))
sketch4.addConstraint(Sketcher.Constraint("Coincident", 45, 2, 46, 1))
sketch4.addConstraint(Sketcher.Constraint("Coincident", 46, 2, 47, 1))
sketch4.addConstraint(Sketcher.Constraint("Coincident", 47, 2, 44, 1))
sketch4.addConstraint(Sketcher.Constraint("Coincident", 48, 2, 49, 1))
sketch4.addConstraint(Sketcher.Constraint("Coincident", 49, 2, 50, 1))
sketch4.addConstraint(Sketcher.Constraint("Coincident", 50, 2, 51, 1))
sketch4.addConstraint(Sketcher.Constraint("Coincident", 51, 2, 48, 1))
sketch4.addConstraint(Sketcher.Constraint("Coincident", 52, 2, 53, 1))
sketch4.addConstraint(Sketcher.Constraint("Coincident", 53, 2, 54, 1))
sketch4.addConstraint(Sketcher.Constraint("Coincident", 54, 2, 55, 1))
sketch4.addConstraint(Sketcher.Constraint("Coincident", 55, 2, 52, 1))
sketch4.addConstraint(Sketcher.Constraint("Vertical", 0))
sketch4.addConstraint(Sketcher.Constraint("Horizontal", 1))
sketch4.addConstraint(Sketcher.Constraint("Vertical", 2))
sketch4.addConstraint(Sketcher.Constraint("Horizontal", 3))
sketch4.addConstraint(Sketcher.Constraint("Vertical", 4))
sketch4.addConstraint(Sketcher.Constraint("Horizontal", 5))
sketch4.addConstraint(Sketcher.Constraint("Vertical", 6))
sketch4.addConstraint(Sketcher.Constraint("Horizontal", 7))
sketch4.addConstraint(Sketcher.Constraint("Vertical", 8))
sketch4.addConstraint(Sketcher.Constraint("Horizontal", 9))
sketch4.addConstraint(Sketcher.Constraint("Vertical", 10))
sketch4.addConstraint(Sketcher.Constraint("Horizontal", 11))
sketch4.addConstraint(Sketcher.Constraint("Vertical", 12))
sketch4.addConstraint(Sketcher.Constraint("Horizontal", 13))
sketch4.addConstraint(Sketcher.Constraint("Vertical", 14))
sketch4.addConstraint(Sketcher.Constraint("Horizontal", 15))
sketch4.addConstraint(Sketcher.Constraint("Vertical", 16))
sketch4.addConstraint(Sketcher.Constraint("Horizontal", 17))
sketch4.addConstraint(Sketcher.Constraint("Vertical", 18))
sketch4.addConstraint(Sketcher.Constraint("Horizontal", 19))
sketch4.addConstraint(Sketcher.Constraint("Vertical", 20))
sketch4.addConstraint(Sketcher.Constraint("Horizontal", 21))
sketch4.addConstraint(Sketcher.Constraint("Vertical", 22))
sketch4.addConstraint(Sketcher.Constraint("Horizontal", 23))
sketch4.addConstraint(Sketcher.Constraint("Vertical", 24))
sketch4.addConstraint(Sketcher.Constraint("Horizontal", 25))
sketch4.addConstraint(Sketcher.Constraint("Vertical", 26))
sketch4.addConstraint(Sketcher.Constraint("Horizontal", 27))
sketch4.addConstraint(Sketcher.Constraint("Vertical", 28))
sketch4.addConstraint(Sketcher.Constraint("Horizontal", 29))
sketch4.addConstraint(Sketcher.Constraint("Vertical", 30))
sketch4.addConstraint(Sketcher.Constraint("Horizontal", 31))
sketch4.addConstraint(Sketcher.Constraint("Vertical", 32))
sketch4.addConstraint(Sketcher.Constraint("Horizontal", 33))
sketch4.addConstraint(Sketcher.Constraint("Vertical", 34))
sketch4.addConstraint(Sketcher.Constraint("Horizontal", 35))
sketch4.addConstraint(Sketcher.Constraint("Vertical", 36))
sketch4.addConstraint(Sketcher.Constraint("Horizontal", 37))
sketch4.addConstraint(Sketcher.Constraint("Vertical", 38))
sketch4.addConstraint(Sketcher.Constraint("Horizontal", 39))
sketch4.addConstraint(Sketcher.Constraint("Vertical", 40))
sketch4.addConstraint(Sketcher.Constraint("Horizontal", 41))
sketch4.addConstraint(Sketcher.Constraint("Vertical", 42))
sketch4.addConstraint(Sketcher.Constraint("Horizontal", 43))
sketch4.addConstraint(Sketcher.Constraint("Vertical", 44))
sketch4.addConstraint(Sketcher.Constraint("Horizontal", 45))
sketch4.addConstraint(Sketcher.Constraint("Vertical", 46))
sketch4.addConstraint(Sketcher.Constraint("Horizontal", 47))
sketch4.addConstraint(Sketcher.Constraint("Vertical", 48))
sketch4.addConstraint(Sketcher.Constraint("Horizontal", 49))
sketch4.addConstraint(Sketcher.Constraint("Vertical", 50))
sketch4.addConstraint(Sketcher.Constraint("Horizontal", 51))
sketch4.addConstraint(Sketcher.Constraint("Vertical", 52))
sketch4.addConstraint(Sketcher.Constraint("Horizontal", 53))
sketch4.addConstraint(Sketcher.Constraint("Vertical", 54))
sketch4.addConstraint(Sketcher.Constraint("Horizontal", 55))
sketch4.addConstraint(Sketcher.Constraint("PointOnObject", 30, 2, -1))
sketch4.addConstraint(Sketcher.Constraint("PointOnObject", 34, 2, -1))
sketch4.addConstraint(Sketcher.Constraint("PointOnObject", 38, 2, -1))
sketch4.addConstraint(Sketcher.Constraint("PointOnObject", 42, 2, -1))
sketch4.addConstraint(Sketcher.Constraint("PointOnObject", 46, 2, -1))
sketch4.addConstraint(Sketcher.Constraint("PointOnObject", 50, 2, -1))
sketch4.addConstraint(Sketcher.Constraint("PointOnObject", 54, 2, -1))
sketch4.addConstraint(Sketcher.Constraint("Horizontal", 1, 2, 4, 2))
sketch4.addConstraint(Sketcher.Constraint("Horizontal", 3, 2, 6, 2))
sketch4.addConstraint(Sketcher.Constraint("Horizontal", 5, 2, 8, 2))
sketch4.addConstraint(Sketcher.Constraint("Horizontal", 7, 2, 10, 2))
sketch4.addConstraint(Sketcher.Constraint("Horizontal", 9, 2, 12, 2))
sketch4.addConstraint(Sketcher.Constraint("Horizontal", 11, 2, 14, 2))
sketch4.addConstraint(Sketcher.Constraint("Horizontal", 13, 2, 16, 2))
sketch4.addConstraint(Sketcher.Constraint("Horizontal", 15, 2, 18, 2))
sketch4.addConstraint(Sketcher.Constraint("Horizontal", 17, 2, 20, 2))
sketch4.addConstraint(Sketcher.Constraint("Horizontal", 19, 2, 22, 2))
sketch4.addConstraint(Sketcher.Constraint("Horizontal", 21, 2, 24, 2))
sketch4.addConstraint(Sketcher.Constraint("Horizontal", 23, 2, 26, 2))
sketch4.addConstraint(Sketcher.Constraint("Horizontal", 29, 2, 32, 2))
sketch4.addConstraint(Sketcher.Constraint("Horizontal", 33, 2, 36, 2))
sketch4.addConstraint(Sketcher.Constraint("Horizontal", 37, 2, 40, 2))
sketch4.addConstraint(Sketcher.Constraint("Horizontal", 41, 2, 44, 2))
sketch4.addConstraint(Sketcher.Constraint("Horizontal", 45, 2, 48, 2))
sketch4.addConstraint(Sketcher.Constraint("Horizontal", 49, 2, 52, 2))
sketch4.addConstraint(Sketcher.Constraint("Vertical", 23, 2, 28, 2))
sketch4.addConstraint(Sketcher.Constraint("Vertical", 22, 2, 29, 2))
sketch4.addConstraint(Sketcher.Constraint("Vertical", 19, 2, 32, 2))
sketch4.addConstraint(Sketcher.Constraint("Vertical", 18, 2, 33, 2))
sketch4.addConstraint(Sketcher.Constraint("Vertical", 15, 2, 36, 2))
sketch4.addConstraint(Sketcher.Constraint("Vertical", 14, 2, 37, 2))
sketch4.addConstraint(Sketcher.Constraint("Vertical", 3, 2, 40, 2))
sketch4.addConstraint(Sketcher.Constraint("Vertical", 2, 2, 41, 2))
sketch4.addConstraint(Sketcher.Constraint("Vertical", 7, 2, 44, 2))
sketch4.addConstraint(Sketcher.Constraint("Vertical", 6, 2, 45, 2))
sketch4.addConstraint(Sketcher.Constraint("Vertical", 11, 2, 48, 2))
sketch4.addConstraint(Sketcher.Constraint("Vertical", 10, 2, 49, 2))
sketch4.addConstraint(Sketcher.Constraint("Vertical", 27, 2, 52, 2))
sketch4.addConstraint(Sketcher.Constraint("Vertical", 26, 2, 53, 2))
sketch4.addConstraint(Sketcher.Constraint("Equal", 3, 5))
sketch4.addConstraint(Sketcher.Constraint("Equal", 7, 13))
sketch4.addConstraint(Sketcher.Constraint("Equal", 15, 21))
sketch4.addConstraint(Sketcher.Constraint("Equal", 23, 25))
sketch4.addConstraint(Sketcher.Constraint("Equal", 26, 28))
sketch4.addConstraint(Sketcher.Constraint("DistanceX", 1, 1, 1, 2, 3.0))
sketch4.addConstraint(Sketcher.Constraint("DistanceY", -1, 1, 0, 2, 20.0))
sketch4.addConstraint(Sketcher.Constraint("DistanceX", -1, 1, 4, 2, 66.0))
sketch4.addConstraint(Sketcher.Constraint("DistanceX", -1, 1, 20, 2, 21.0))
sketch4.addConstraint(Sketcher.Constraint("DistanceY", 0, 1, 0, 2, 1.75))
sketch4.addConstraint(Sketcher.Constraint("DistanceX", -1, 1, 12, 2, 43.5))
sketch4.addConstraint(Sketcher.Constraint("DistanceX", 1, 2, 8, 2, 19.5))
sketch4.addConstraint(Sketcher.Constraint("DistanceX", 16, 2, 0, 2, 22.5))
sketch4.addConstraint(Sketcher.Constraint("DistanceX", 24, 2, 16, 2, 22.5))
sketch4.addConstraint(Sketcher.Constraint("DistanceX", -1, 1, 0, 2, 54.75))
sketch4.addConstraint(Sketcher.Constraint("DistanceX", 9, 1, 9, 2, 3.002941))
sketch4.addConstraint(Sketcher.Constraint("DistanceX", 17, 1, 17, 2, 2.997619))
pocket3 = body.newObject("PartDesign::Pocket", "Pocket002")
pocket3.Profile = sketch4
pocket3.Length = 5
pocket3.Reversed = True

sketch5 = body.newObject("Sketcher::SketchObject", "Sketch004")
sketch5.AttachmentSupport = (doc.getObject("XZ_Plane"), [""])
sketch5.MapMode = "FlatFace"
sketch5.AttachmentOffset = App.Placement(App.Vector(0, 0, 10), App.Rotation())
sketch5.addGeometry(Part.LineSegment(App.Vector(0, 8.5, 0), App.Vector(0, 11.5, 0)), False)
sketch5.addGeometry(Part.LineSegment(App.Vector(0, 11.5, 0), App.Vector(1.5, 11.5, 0)), False)
sketch5.addGeometry(Part.LineSegment(App.Vector(1.5, 11.5, 0), App.Vector(1.5, 8.5, 0)), False)
sketch5.addGeometry(Part.LineSegment(App.Vector(1.5, 8.5, 0), App.Vector(0, 8.5, 0)), False)
sketch5.addGeometry(Part.LineSegment(App.Vector(88.5, 8.5, 0), App.Vector(88.5, 11.5, 0)), False)
sketch5.addGeometry(Part.LineSegment(App.Vector(88.5, 11.5, 0), App.Vector(90, 11.5, 0)), False)
sketch5.addGeometry(Part.LineSegment(App.Vector(90, 11.5, 0), App.Vector(90, 8.5, 0)), False)
sketch5.addGeometry(Part.LineSegment(App.Vector(90, 8.5, 0), App.Vector(88.5, 8.5, 0)), False)
sketch5.addConstraint(Sketcher.Constraint("Coincident", 0, 2, 1, 1))
sketch5.addConstraint(Sketcher.Constraint("Coincident", 1, 2, 2, 1))
sketch5.addConstraint(Sketcher.Constraint("Coincident", 2, 2, 3, 1))
sketch5.addConstraint(Sketcher.Constraint("Coincident", 3, 2, 0, 1))
sketch5.addConstraint(Sketcher.Constraint("Coincident", 4, 2, 5, 1))
sketch5.addConstraint(Sketcher.Constraint("Coincident", 5, 2, 6, 1))
sketch5.addConstraint(Sketcher.Constraint("Coincident", 6, 2, 7, 1))
sketch5.addConstraint(Sketcher.Constraint("Coincident", 7, 2, 4, 1))
sketch5.addConstraint(Sketcher.Constraint("Vertical", 0))
sketch5.addConstraint(Sketcher.Constraint("Horizontal", 1))
sketch5.addConstraint(Sketcher.Constraint("Vertical", 2))
sketch5.addConstraint(Sketcher.Constraint("Horizontal", 3))
sketch5.addConstraint(Sketcher.Constraint("Vertical", 4))
sketch5.addConstraint(Sketcher.Constraint("Horizontal", 5))
sketch5.addConstraint(Sketcher.Constraint("Vertical", 6))
sketch5.addConstraint(Sketcher.Constraint("Horizontal", 7))
sketch5.addConstraint(Sketcher.Constraint("PointOnObject", 0, 2, -2))
sketch5.addConstraint(Sketcher.Constraint("Horizontal", 1, 2, 4, 2))
sketch5.addConstraint(Sketcher.Constraint("Horizontal", 3, 2, 6, 2))
sketch5.addConstraint(Sketcher.Constraint("Equal", 3, 5))
sketch5.addConstraint(Sketcher.Constraint("DistanceY", 0, 1, 0, 2, 3.0))
sketch5.addConstraint(Sketcher.Constraint("DistanceX", 1, 1, 1, 2, 1.5))
sketch5.addConstraint(Sketcher.Constraint("DistanceX", -1, 1, 5, 2, 90.0))
sketch5.addConstraint(Sketcher.Constraint("DistanceY", -1, 1, 0, 2, 11.5))
pad2 = body.newObject("PartDesign::Pad", "Pad001")
pad2.Profile = sketch5
pad2.Length = 10
pad2.Reversed = True

sketch6 = body.newObject("Sketcher::SketchObject", "Sketch005")
sketch6.AttachmentSupport = (doc.getObject("XY_Plane"), [""])
sketch6.MapMode = "FlatFace"
sketch6.AttachmentOffset = App.Placement(App.Vector(0, 0, 20), App.Rotation())
sketch6.addGeometry(Part.LineSegment(App.Vector(0, -15, 0), App.Vector(0, -20, 0)), False)
sketch6.addGeometry(Part.LineSegment(App.Vector(0, -20, 0), App.Vector(90, -20, 0)), False)
sketch6.addGeometry(Part.LineSegment(App.Vector(90, -20, 0), App.Vector(90, -15, 0)), False)
sketch6.addGeometry(Part.LineSegment(App.Vector(90, -15, 0), App.Vector(0, -15, 0)), False)
sketch6.addConstraint(Sketcher.Constraint("Coincident", 0, 2, 1, 1))
sketch6.addConstraint(Sketcher.Constraint("Coincident", 1, 2, 2, 1))
sketch6.addConstraint(Sketcher.Constraint("Coincident", 2, 2, 3, 1))
sketch6.addConstraint(Sketcher.Constraint("Coincident", 3, 2, 0, 1))
sketch6.addConstraint(Sketcher.Constraint("Vertical", 0))
sketch6.addConstraint(Sketcher.Constraint("Horizontal", 1))
sketch6.addConstraint(Sketcher.Constraint("Vertical", 2))
sketch6.addConstraint(Sketcher.Constraint("Horizontal", 3))
sketch6.addConstraint(Sketcher.Constraint("PointOnObject", 0, 2, -2))
sketch6.addConstraint(Sketcher.Constraint("DistanceX", 1, 1, 1, 2, 90.0))
sketch6.addConstraint(Sketcher.Constraint("DistanceY", 0, 2, 0, 1, 5.0))
sketch6.addConstraint(Sketcher.Constraint("DistanceY", 0, 2, -1, 1, 20.0))
pocket4 = body.newObject("PartDesign::Pocket", "Pocket003")
pocket4.Profile = sketch6
pocket4.Length = 56

sketch7 = body.newObject("Sketcher::SketchObject", "Sketch006")
sketch7.AttachmentSupport = (doc.getObject("XZ_Plane"), [""])
sketch7.MapMode = "FlatFace"
sketch7.AttachmentOffset = App.Placement(App.Vector(0, 0, 15), App.Rotation())
sketch7.addGeometry(Part.LineSegment(App.Vector(0, 25, 0), App.Vector(0, 20, 0)), False)
sketch7.addGeometry(Part.LineSegment(App.Vector(0, 20, 0), App.Vector(5, 20, 0)), False)
sketch7.addGeometry(Part.LineSegment(App.Vector(5, 20, 0), App.Vector(5, 25, 0)), False)
sketch7.addGeometry(Part.LineSegment(App.Vector(5, 25, 0), App.Vector(0, 25, 0)), False)
sketch7.addGeometry(Part.LineSegment(App.Vector(0, 0, 0), App.Vector(0, -5, 0)), False)
sketch7.addGeometry(Part.LineSegment(App.Vector(0, -5, 0), App.Vector(5, -5, 0)), False)
sketch7.addGeometry(Part.LineSegment(App.Vector(5, -5, 0), App.Vector(5, 0, 0)), False)
sketch7.addGeometry(Part.LineSegment(App.Vector(5, 0, 0), App.Vector(0, 0, 0)), False)
sketch7.addConstraint(Sketcher.Constraint("Coincident", 0, 2, 1, 1))
sketch7.addConstraint(Sketcher.Constraint("Coincident", 1, 2, 2, 1))
sketch7.addConstraint(Sketcher.Constraint("Coincident", 2, 2, 3, 1))
sketch7.addConstraint(Sketcher.Constraint("Coincident", 3, 2, 0, 1))
sketch7.addConstraint(Sketcher.Constraint("Coincident", 4, 2, 5, 1))
sketch7.addConstraint(Sketcher.Constraint("Coincident", 5, 2, 6, 1))
sketch7.addConstraint(Sketcher.Constraint("Coincident", 6, 2, 7, 1))
sketch7.addConstraint(Sketcher.Constraint("Coincident", 7, 2, 4, 1))
sketch7.addConstraint(Sketcher.Constraint("Vertical", 0))
sketch7.addConstraint(Sketcher.Constraint("Horizontal", 1))
sketch7.addConstraint(Sketcher.Constraint("Vertical", 2))
sketch7.addConstraint(Sketcher.Constraint("Horizontal", 3))
sketch7.addConstraint(Sketcher.Constraint("Vertical", 4))
sketch7.addConstraint(Sketcher.Constraint("Horizontal", 5))
sketch7.addConstraint(Sketcher.Constraint("Vertical", 6))
sketch7.addConstraint(Sketcher.Constraint("Horizontal", 7))
sketch7.addConstraint(Sketcher.Constraint("Coincident", 7, 2, -1, 1))
sketch7.addConstraint(Sketcher.Constraint("PointOnObject", 0, 2, -2))
sketch7.addConstraint(Sketcher.Constraint("Vertical", 2, 2, 5, 2))
sketch7.addConstraint(Sketcher.Constraint("Equal", 7, 0))
sketch7.addConstraint(Sketcher.Constraint("Equal", 2, 4))
sketch7.addConstraint(Sketcher.Constraint("DistanceX", 1, 1, 1, 2, 5.0))
sketch7.addConstraint(Sketcher.Constraint("DistanceY", -1, 1, 0, 2, 20.0))
pad3 = body.newObject("PartDesign::Pad", "Pad002")
pad3.Profile = sketch7
pad3.Length = 5
pad3.Reversed = True

sketch8 = body.newObject("Sketcher::SketchObject", "Sketch007")
sketch8.AttachmentSupport = (doc.getObject("XZ_Plane"), [""])
sketch8.MapMode = "FlatFace"
sketch8.AttachmentOffset = App.Placement(App.Vector(0, 0, 10), App.Rotation())
sketch8.addGeometry(Part.Circle(App.Vector(2.5, -2.5, 0), App.Vector(0, 0, 1), 1.5), False)
sketch8.addGeometry(Part.Circle(App.Vector(2.5, 22.5, 0), App.Vector(0, 0, 1), 1.5), False)
sketch8.addConstraint(Sketcher.Constraint("Equal", 0, 1))
sketch8.addConstraint(Sketcher.Constraint("Vertical", 0, 3, 1, 3))
sketch8.addConstraint(Sketcher.Constraint("Diameter", 0, 3.0))
sketch8.addConstraint(Sketcher.Constraint("DistanceY", 0, 3, 1, 3, 25.0))
sketch8.addConstraint(Sketcher.Constraint("DistanceX", -1, 1, 0, 3, 2.5))
sketch8.addConstraint(Sketcher.Constraint("DistanceY", 0, 3, -1, 1, 2.5))
pocket5 = body.newObject("PartDesign::Pocket", "Pocket004")
pocket5.Profile = sketch8
pocket5.Length = 5
pocket5.Reversed = True
doc.recompute()

fillet = body.newObject("PartDesign::Fillet", "Fillet")
fillet.Base = (pocket5, edges_at(pocket5, [
    (0, -12.5, 25),
    (5, -12.5, 25),
    (0, -12.5, -5),
    (5, -12.5, -5),
]))
fillet.Radius = 1.98

doc.recompute()
